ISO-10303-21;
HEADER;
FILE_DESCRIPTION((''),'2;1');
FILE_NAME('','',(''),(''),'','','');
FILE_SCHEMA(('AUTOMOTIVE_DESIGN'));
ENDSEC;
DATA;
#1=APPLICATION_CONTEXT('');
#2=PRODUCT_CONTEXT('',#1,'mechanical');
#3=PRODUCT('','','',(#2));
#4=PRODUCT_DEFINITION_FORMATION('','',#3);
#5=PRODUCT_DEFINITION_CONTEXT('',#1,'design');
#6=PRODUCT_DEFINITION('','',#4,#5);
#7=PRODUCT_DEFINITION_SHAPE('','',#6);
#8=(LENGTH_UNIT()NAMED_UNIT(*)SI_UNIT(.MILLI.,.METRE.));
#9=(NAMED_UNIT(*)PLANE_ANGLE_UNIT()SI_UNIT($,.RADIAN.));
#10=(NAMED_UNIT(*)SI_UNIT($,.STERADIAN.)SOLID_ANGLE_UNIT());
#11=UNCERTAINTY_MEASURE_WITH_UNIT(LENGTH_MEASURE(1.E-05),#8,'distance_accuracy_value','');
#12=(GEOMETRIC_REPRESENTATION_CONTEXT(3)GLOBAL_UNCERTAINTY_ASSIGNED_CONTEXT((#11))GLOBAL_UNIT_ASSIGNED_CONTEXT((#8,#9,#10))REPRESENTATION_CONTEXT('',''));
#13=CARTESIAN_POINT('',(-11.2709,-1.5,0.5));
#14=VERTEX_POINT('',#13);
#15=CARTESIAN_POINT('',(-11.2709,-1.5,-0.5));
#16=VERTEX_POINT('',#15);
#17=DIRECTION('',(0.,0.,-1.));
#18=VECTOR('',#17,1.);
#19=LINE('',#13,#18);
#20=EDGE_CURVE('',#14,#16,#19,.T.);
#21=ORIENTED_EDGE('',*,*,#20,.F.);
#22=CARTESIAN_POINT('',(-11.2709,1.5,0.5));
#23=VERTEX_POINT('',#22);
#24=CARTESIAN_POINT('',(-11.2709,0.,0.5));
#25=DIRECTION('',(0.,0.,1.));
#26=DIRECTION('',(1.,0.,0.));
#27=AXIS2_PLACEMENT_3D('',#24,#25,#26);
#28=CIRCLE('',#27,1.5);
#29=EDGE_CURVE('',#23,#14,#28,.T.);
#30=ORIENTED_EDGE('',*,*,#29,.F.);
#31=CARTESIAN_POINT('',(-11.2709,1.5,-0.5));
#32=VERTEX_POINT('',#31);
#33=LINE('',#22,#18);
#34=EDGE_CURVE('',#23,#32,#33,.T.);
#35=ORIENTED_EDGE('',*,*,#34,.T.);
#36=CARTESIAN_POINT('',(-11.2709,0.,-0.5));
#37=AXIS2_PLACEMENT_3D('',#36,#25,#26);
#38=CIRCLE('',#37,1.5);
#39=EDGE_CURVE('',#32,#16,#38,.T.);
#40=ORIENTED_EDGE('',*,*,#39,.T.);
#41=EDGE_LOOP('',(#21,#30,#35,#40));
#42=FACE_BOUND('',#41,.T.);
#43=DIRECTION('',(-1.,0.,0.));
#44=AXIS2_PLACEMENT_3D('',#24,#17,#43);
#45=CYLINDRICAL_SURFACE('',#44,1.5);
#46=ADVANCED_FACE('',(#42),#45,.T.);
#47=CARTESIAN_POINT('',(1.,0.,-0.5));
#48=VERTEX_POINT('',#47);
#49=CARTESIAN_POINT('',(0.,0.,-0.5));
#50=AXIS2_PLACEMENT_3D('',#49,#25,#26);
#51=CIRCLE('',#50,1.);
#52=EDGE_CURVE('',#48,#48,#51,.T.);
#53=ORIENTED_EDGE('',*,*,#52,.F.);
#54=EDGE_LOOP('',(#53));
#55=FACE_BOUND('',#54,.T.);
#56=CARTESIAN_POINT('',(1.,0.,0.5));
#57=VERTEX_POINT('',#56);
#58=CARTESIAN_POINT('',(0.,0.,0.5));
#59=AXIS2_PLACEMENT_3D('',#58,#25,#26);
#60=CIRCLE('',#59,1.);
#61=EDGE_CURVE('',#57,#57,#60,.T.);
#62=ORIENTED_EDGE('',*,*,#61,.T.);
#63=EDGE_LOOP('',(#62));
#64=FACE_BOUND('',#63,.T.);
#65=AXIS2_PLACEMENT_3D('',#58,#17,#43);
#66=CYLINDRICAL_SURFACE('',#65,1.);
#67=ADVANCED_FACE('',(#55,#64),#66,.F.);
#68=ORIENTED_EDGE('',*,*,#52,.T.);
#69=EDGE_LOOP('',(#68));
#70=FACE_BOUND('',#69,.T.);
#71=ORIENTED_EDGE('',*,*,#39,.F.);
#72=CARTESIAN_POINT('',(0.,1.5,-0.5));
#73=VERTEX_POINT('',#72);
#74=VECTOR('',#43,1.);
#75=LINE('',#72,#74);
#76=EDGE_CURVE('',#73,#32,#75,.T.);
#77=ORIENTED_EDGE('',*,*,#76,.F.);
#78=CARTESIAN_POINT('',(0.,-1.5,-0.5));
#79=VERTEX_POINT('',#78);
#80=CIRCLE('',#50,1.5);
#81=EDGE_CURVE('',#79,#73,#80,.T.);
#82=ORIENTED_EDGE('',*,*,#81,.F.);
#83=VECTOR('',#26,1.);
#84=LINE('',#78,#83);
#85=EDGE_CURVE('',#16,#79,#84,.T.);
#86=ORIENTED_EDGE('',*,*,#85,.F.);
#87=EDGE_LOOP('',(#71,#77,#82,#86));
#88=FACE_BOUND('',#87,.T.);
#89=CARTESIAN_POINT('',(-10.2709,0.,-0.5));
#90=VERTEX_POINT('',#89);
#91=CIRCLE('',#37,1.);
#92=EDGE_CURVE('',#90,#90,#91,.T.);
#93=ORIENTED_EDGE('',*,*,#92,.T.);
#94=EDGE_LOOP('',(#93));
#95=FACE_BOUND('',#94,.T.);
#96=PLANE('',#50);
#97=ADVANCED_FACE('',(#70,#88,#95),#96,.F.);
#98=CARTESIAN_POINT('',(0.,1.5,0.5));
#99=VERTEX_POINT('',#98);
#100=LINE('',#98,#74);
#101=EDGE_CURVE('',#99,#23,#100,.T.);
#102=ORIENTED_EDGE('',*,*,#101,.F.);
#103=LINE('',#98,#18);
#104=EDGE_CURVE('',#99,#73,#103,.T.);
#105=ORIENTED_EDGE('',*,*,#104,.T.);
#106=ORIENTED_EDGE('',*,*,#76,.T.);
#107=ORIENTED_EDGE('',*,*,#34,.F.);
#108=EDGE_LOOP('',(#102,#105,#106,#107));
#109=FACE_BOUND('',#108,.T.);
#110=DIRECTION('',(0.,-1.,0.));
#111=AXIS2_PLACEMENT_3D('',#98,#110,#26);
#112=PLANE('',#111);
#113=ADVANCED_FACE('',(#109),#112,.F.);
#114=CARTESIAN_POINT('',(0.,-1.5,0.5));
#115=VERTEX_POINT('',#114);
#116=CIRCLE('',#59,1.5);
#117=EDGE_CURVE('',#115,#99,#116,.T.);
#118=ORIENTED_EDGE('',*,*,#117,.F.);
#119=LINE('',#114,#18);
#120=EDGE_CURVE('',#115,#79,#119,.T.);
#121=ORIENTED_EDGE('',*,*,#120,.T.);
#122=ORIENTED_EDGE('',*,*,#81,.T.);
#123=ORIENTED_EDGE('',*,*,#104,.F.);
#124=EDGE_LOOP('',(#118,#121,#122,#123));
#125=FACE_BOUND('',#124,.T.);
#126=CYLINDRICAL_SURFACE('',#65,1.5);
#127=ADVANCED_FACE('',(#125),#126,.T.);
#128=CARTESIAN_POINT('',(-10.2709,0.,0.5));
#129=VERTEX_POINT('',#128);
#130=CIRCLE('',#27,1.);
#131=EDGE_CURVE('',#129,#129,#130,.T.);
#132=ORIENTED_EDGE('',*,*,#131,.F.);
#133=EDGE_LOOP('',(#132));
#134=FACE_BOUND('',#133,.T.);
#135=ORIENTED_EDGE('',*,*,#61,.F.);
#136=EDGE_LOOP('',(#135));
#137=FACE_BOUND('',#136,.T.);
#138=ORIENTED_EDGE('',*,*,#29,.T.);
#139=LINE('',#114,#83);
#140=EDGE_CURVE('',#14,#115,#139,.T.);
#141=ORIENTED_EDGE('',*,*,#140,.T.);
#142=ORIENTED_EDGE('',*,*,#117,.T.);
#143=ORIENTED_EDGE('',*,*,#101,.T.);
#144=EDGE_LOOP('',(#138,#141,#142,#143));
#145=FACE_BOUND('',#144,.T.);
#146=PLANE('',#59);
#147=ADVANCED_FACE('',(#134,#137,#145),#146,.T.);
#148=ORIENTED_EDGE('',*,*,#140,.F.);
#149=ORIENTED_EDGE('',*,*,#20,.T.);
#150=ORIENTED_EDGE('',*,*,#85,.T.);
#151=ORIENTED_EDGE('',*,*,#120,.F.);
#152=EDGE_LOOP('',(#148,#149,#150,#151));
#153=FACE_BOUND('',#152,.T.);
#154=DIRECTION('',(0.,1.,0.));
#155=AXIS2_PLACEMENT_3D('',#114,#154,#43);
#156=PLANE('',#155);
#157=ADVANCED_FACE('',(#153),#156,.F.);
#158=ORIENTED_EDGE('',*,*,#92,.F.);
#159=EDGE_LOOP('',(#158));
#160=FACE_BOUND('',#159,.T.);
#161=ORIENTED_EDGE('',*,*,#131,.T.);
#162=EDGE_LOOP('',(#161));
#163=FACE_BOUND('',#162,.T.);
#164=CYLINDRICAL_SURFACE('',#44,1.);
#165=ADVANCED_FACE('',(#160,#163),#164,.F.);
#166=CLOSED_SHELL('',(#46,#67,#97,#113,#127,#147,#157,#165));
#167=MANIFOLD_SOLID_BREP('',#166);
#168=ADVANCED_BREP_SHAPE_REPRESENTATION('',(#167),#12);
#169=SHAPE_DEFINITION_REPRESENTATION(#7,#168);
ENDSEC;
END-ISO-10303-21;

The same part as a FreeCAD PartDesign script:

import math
import FreeCAD as App
import Part
import Sketcher
from FreeCAD import Vector

doc = App.newDocument("Part")
body = doc.addObject("PartDesign::Body", "Body")

sketch1 = doc.addObject("Sketcher::SketchObject", "Sketch")
body.addObject(sketch1)
sketch1.AttachmentSupport = (doc.XY_Plane, [""])
sketch1.MapMode = "FlatFace"
sketch1.addGeometry([
    Part.LineSegment(Vector(-11.3, -1.5, 0), Vector(0, -1.5, 0)),
    Part.ArcOfCircle(Part.Circle(Vector(0, 0, 0), Vector(0, 0, 1), 1.5), math.radians(-90), math.radians(90)),
    Part.LineSegment(Vector(0, 1.5, 0), Vector(-11.3, 1.5, 0)),
    Part.ArcOfCircle(Part.Circle(Vector(-11.3, 0, 0), Vector(0, 0, 1), 1.5), math.radians(90), math.radians(270)),
    Part.Circle(Vector(0, 0, 0), Vector(0, 0, 1), 1),
    Part.Circle(Vector(-11.3, 0, 0), Vector(0, 0, 1), 1),
], False)
sketch1.addConstraint([
    Sketcher.Constraint("Tangent", 0, 2, 1, 1),
    Sketcher.Constraint("Tangent", 1, 2, 2, 1),
    Sketcher.Constraint("Tangent", 2, 2, 3, 1),
    Sketcher.Constraint("Tangent", 3, 2, 0, 1),
    Sketcher.Constraint("Horizontal", 0),
    Sketcher.Constraint("Horizontal", 2),
    Sketcher.Constraint("Coincident", 1, 3, -1, 1),
    Sketcher.Constraint("Coincident", 4, 3, -1, 1),
    Sketcher.Constraint("Coincident", 5, 3, 3, 3),
    Sketcher.Constraint("Equal", 4, 5),
    Sketcher.Constraint("Diameter", 4, 2.0),
    Sketcher.Constraint("Radius", 1, 1.5),
    Sketcher.Constraint("DistanceX", 0, 1, 0, 2, 11.2709),
])
pad1 = doc.addObject("PartDesign::Pad", "Pad")
body.addObject(pad1)
pad1.Profile = sketch1
pad1.Length = 1
pad1.Midplane = True

doc.recompute()
